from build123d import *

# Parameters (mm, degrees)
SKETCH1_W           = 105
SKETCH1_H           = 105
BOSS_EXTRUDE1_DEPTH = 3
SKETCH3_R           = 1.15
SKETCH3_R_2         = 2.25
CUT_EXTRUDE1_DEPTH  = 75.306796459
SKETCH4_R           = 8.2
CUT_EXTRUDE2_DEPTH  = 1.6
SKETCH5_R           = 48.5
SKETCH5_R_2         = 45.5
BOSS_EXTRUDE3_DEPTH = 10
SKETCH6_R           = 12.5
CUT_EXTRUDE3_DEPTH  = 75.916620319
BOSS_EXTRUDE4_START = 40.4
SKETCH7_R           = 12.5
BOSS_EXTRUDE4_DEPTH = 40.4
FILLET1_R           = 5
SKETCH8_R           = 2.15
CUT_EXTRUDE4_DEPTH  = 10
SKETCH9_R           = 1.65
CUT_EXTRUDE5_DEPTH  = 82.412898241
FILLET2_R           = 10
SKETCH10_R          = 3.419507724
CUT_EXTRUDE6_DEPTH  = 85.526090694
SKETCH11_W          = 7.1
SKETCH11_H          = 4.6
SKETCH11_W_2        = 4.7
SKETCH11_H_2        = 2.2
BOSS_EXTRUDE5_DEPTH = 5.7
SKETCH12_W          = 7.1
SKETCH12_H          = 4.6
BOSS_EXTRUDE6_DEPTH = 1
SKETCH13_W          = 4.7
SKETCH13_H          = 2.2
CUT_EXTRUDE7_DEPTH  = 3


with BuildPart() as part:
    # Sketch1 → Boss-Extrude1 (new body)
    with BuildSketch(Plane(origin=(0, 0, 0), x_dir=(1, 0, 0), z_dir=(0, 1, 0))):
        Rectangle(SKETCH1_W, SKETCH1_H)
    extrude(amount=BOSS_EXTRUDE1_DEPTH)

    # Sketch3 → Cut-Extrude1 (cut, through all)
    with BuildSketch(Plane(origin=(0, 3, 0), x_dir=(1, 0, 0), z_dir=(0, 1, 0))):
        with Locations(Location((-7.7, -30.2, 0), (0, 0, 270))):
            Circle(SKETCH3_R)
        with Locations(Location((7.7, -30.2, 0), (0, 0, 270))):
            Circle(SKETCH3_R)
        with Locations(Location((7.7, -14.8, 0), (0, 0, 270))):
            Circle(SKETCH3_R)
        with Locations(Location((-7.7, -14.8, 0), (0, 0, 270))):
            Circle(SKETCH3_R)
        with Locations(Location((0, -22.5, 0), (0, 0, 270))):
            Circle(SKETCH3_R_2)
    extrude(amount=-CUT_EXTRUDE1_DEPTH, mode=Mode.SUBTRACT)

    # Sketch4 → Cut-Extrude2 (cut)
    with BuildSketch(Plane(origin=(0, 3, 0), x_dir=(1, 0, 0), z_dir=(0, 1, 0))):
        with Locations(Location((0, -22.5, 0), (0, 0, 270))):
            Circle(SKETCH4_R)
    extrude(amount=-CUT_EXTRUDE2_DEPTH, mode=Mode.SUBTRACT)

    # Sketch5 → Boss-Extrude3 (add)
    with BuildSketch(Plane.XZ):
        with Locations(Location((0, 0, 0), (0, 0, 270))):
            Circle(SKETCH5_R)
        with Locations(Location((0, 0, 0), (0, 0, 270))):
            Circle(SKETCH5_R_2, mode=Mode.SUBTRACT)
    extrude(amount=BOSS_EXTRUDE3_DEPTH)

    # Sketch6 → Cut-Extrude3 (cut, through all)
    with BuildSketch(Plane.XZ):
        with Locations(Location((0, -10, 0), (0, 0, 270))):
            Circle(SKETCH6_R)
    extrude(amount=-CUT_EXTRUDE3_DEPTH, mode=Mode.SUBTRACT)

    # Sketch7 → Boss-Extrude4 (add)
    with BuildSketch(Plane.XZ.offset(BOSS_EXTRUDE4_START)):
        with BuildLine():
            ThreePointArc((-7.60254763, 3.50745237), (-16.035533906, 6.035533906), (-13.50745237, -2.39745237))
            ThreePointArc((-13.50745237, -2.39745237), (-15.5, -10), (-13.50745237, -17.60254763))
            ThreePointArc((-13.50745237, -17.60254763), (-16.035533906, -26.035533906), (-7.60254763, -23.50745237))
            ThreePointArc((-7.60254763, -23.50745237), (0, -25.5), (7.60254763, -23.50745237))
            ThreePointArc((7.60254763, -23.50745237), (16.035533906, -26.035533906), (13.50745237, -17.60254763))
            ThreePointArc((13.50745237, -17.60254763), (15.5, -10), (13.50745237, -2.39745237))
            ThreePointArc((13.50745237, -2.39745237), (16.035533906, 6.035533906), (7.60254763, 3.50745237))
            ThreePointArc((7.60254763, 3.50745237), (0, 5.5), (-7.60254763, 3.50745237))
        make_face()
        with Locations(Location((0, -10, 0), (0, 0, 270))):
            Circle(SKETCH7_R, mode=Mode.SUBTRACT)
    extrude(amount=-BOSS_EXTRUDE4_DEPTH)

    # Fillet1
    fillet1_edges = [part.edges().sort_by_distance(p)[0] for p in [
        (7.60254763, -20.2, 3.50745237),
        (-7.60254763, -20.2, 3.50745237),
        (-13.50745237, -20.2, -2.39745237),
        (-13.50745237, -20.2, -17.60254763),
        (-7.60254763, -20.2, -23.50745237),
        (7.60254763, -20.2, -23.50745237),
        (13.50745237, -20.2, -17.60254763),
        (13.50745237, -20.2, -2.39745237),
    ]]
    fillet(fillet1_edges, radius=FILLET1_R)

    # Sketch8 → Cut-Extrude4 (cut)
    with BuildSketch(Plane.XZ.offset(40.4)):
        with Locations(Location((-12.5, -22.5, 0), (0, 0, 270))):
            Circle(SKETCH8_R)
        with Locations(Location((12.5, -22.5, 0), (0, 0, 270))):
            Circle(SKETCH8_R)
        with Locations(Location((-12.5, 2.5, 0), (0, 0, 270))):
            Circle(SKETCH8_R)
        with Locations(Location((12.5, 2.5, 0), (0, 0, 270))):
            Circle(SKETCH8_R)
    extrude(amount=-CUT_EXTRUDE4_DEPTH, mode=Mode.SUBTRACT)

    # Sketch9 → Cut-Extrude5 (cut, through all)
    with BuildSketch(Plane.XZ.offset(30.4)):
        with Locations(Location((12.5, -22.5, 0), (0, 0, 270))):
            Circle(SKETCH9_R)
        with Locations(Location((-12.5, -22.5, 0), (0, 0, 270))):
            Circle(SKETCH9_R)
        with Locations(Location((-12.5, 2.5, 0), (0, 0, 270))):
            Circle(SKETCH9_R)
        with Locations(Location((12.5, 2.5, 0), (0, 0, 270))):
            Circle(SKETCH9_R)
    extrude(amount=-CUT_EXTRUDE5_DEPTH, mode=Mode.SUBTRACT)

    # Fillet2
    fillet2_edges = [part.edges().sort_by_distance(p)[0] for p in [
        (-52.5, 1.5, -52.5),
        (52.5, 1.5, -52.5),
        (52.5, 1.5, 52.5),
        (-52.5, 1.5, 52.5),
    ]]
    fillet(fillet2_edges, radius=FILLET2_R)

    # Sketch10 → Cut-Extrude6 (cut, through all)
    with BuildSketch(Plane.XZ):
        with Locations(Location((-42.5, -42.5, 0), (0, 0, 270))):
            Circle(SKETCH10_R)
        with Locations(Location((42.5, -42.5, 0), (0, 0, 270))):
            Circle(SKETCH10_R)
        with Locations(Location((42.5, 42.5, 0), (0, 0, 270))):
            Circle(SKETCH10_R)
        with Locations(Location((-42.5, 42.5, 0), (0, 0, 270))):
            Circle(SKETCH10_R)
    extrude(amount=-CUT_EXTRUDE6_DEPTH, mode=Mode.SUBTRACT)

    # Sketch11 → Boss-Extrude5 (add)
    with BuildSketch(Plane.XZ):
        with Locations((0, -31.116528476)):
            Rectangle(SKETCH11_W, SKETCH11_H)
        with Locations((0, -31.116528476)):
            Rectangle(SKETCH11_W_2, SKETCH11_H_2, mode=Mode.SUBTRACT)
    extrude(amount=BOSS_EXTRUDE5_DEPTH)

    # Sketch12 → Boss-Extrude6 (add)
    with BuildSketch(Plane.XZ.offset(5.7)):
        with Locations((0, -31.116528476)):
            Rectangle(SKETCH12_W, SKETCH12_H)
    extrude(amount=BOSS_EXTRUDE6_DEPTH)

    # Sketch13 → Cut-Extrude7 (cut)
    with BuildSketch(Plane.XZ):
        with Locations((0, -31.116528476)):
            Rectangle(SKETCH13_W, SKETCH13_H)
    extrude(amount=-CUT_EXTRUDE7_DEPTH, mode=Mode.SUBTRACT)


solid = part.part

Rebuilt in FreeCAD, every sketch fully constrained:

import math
import FreeCAD as App
import Part
import Sketcher
Q = App.Units.Quantity


def edges_at(feature, points):
    """Names of the edges that pass closest to the given points."""
    edges = feature.Shape.Edges
    near = lambda p: min(range(len(edges)), key=lambda i: edges[i].distToShape(Part.Vertex(*p))[0])
    return sorted({f"Edge{near(p) + 1}" for p in points})


def add_polygon(sketch, points):
    """Adds a closed chain of lines whose ends are joined by coincident constraints."""
    first, n = sketch.GeometryCount, len(points)
    for a, b in zip(points, points[1:] + points[:1]):
        sketch.addGeometry(Part.LineSegment(App.Vector(*a, 0), App.Vector(*b, 0)), False)
    for i in range(n):
        sketch.addConstraint(Sketcher.Constraint("Coincident", first + i, 2, first + (i + 1) % n, 1))

doc = App.newDocument("Part")
params = doc.addObject("Spreadsheet::Sheet", "Params")
for row, (alias, value) in enumerate([
    ("sketch1_width", "105 mm"),
    ("pad1_length", "3 mm"),
    ("sketch2_diameter", "2.3 mm"),
    ("sketch2_diameter2", "4.5 mm"),
    ("sketch3_diameter", "16.4 mm"),
    ("pocket2_length", "1.6 mm"),
    ("sketch4_diameter", "97 mm"),
    ("sketch4_diameter2", "91 mm"),
    ("pad2_length", "10 mm"),
    ("sketch5_diameter", "25 mm"),
    ("sketch6_diameter", "25 mm"),
    ("sketch6_radius", "5 mm"),
    ("sketch6_radius2", "15.5 mm"),
    ("pad3_length", "40.4 mm"),
    ("fillet_radius", "5 mm"),
    ("sketch7_diameter", "4.3 mm"),
    ("pocket4_length", "10 mm"),
    ("sketch8_diameter", "3.3 mm"),
    ("fillet2_radius", "10 mm"),
    ("sketch10_width", "7.1 mm"),
    ("sketch10_width2", "4.7 mm"),
    ("sketch10_height", "4.6 mm"),
    ("sketch10_height2", "2.2 mm"),
    ("pad4_length", "5.7 mm"),
    ("sketch11_width", "7.1 mm"),
    ("sketch11_height", "4.6 mm"),
    ("pad5_length", "1 mm"),
    ("sketch12_width", "4.7 mm"),
    ("sketch12_height", "2.2 mm"),
    ("pocket7_length", "3 mm"),
], start=1):
    params.set(f"A{row}", alias)
    params.set(f"B{row}", "=" + value)
    params.setAlias(f"B{row}", alias)

body = doc.addObject("PartDesign::Body", "Body")

# Sketch on XZ plane
sketch1 = doc.addObject("Sketcher::SketchObject", "Sketch")
body.addObject(sketch1)
sketch1.AttachmentSupport = (doc.XZ_Plane, [""])
sketch1.MapMode = "FlatFace"
add_polygon(sketch1, [(-52, -52), (-52, 52), (52, 52), (52, -52)])  # lines 0-3
sketch1.addConstraint(Sketcher.Constraint("Vertical", 0))
sketch1.addConstraint(Sketcher.Constraint("Horizontal", 1))
sketch1.addConstraint(Sketcher.Constraint("Vertical", 2))
sketch1.addConstraint(Sketcher.Constraint("Horizontal", 3))
sketch1.addConstraint(Sketcher.Constraint("Symmetric", 0, 2, 2, 2, -1, 1))
sketch1.addConstraint(Sketcher.Constraint("Equal", 3, 0))
sketch1.addConstraint(Sketcher.Constraint("DistanceX", 1, 1, 1, 2, Q("105 mm")))
sketch1.setExpression("Constraints[10]", "Params.sketch1_width")
pad1 = doc.addObject("PartDesign::Pad", "Pad")
body.addObject(pad1)
pad1.Profile = sketch1
pad1.setExpression("Length", "Params.pad1_length")
pad1.Reversed = True

# Sketch on XZ plane
sketch2 = doc.addObject("Sketcher::SketchObject", "Sketch001")
body.addObject(sketch2)
sketch2.AttachmentSupport = (doc.XZ_Plane, [""])
sketch2.MapMode = "FlatFace"
sketch2.AttachmentOffset = App.Placement(App.Vector(0, 0, -3), App.Rotation())
sketch2.addGeometry(Part.Circle(App.Vector(-7.7, 30.2, 0), App.Vector(0, 0, 1), 1.1), False)
sketch2.addGeometry(Part.Circle(App.Vector(7.7, 30.2, 0), App.Vector(0, 0, 1), 1.1), False)
sketch2.addGeometry(Part.Circle(App.Vector(7.7, 14.8, 0), App.Vector(0, 0, 1), 1.1), False)
sketch2.addGeometry(Part.Circle(App.Vector(-7.7, 14.8, 0), App.Vector(0, 0, 1), 1.1), False)
sketch2.addGeometry(Part.Circle(App.Vector(0, 22.5, 0), App.Vector(0, 0, 1), 2.2), False)
sketch2.addConstraint(Sketcher.Constraint("Equal", 0, 1))
sketch2.addConstraint(Sketcher.Constraint("Equal", 1, 2))
sketch2.addConstraint(Sketcher.Constraint("Equal", 2, 3))
sketch2.addConstraint(Sketcher.Constraint("Symmetric", 0, 3, 1, 3, -2))
sketch2.addConstraint(Sketcher.Constraint("Symmetric", 2, 3, 3, 3, -2))
sketch2.addConstraint(Sketcher.Constraint("PointOnObject", 4, 3, -2))
sketch2.addConstraint(Sketcher.Constraint("Vertical", 1, 3, 2, 3))
sketch2.addConstraint(Sketcher.Constraint("Diameter", 0, Q("2.3 mm")))
sketch2.addConstraint(Sketcher.Constraint("Diameter", 4, Q("4.5 mm")))
sketch2.addConstraint(Sketcher.Constraint("DistanceX", 0, 3, -1, 1, Q("7.7 mm")))
sketch2.addConstraint(Sketcher.Constraint("DistanceY", -1, 1, 0, 3, Q("30.2 mm")))
sketch2.addConstraint(Sketcher.Constraint("DistanceY", -1, 1, 2, 3, Q("14.8 mm")))
sketch2.addConstraint(Sketcher.Constraint("DistanceY", -1, 1, 4, 3, Q("22.5 mm")))
sketch2.setExpression("Constraints[7]", "Params.sketch2_diameter")
sketch2.setExpression("Constraints[8]", "Params.sketch2_diameter2")
pocket1 = doc.addObject("PartDesign::Pocket", "Pocket")
body.addObject(pocket1)
pocket1.Profile = sketch2
pocket1.Type = "ThroughAll"
pocket1.Reversed = True

# Sketch on XZ plane
sketch3 = doc.addObject("Sketcher::SketchObject", "Sketch002")
body.addObject(sketch3)
sketch3.AttachmentSupport = (doc.XZ_Plane, [""])
sketch3.MapMode = "FlatFace"
sketch3.AttachmentOffset = App.Placement(App.Vector(0, 0, -3), App.Rotation())
sketch3.addGeometry(Part.Circle(App.Vector(0, 22, 0), App.Vector(0, 0, 1), 8), False)
sketch3.addConstraint(Sketcher.Constraint("PointOnObject", 0, 3, -2))
sketch3.addConstraint(Sketcher.Constraint("Diameter", 0, Q("16.4 mm")))
sketch3.addConstraint(Sketcher.Constraint("DistanceY", -1, 1, 0, 3, Q("22.5 mm")))
sketch3.setExpression("Constraints[1]", "Params.sketch3_diameter")
pocket2 = doc.addObject("PartDesign::Pocket", "Pocket001")
body.addObject(pocket2)
pocket2.Profile = sketch3
pocket2.setExpression("Length", "Params.pocket2_length")
pocket2.Reversed = True

# Sketch on XZ plane
sketch4 = doc.addObject("Sketcher::SketchObject", "Sketch003")
body.addObject(sketch4)
sketch4.AttachmentSupport = (doc.XZ_Plane, [""])
sketch4.MapMode = "FlatFace"
sketch4.addGeometry(Part.Circle(App.Vector(0, 0, 0), App.Vector(0, 0, 1), 48), False)
sketch4.addGeometry(Part.Circle(App.Vector(0, 0, 0), App.Vector(0, 0, 1), 46), False)
sketch4.addConstraint(Sketcher.Constraint("Coincident", 0, 3, -1, 1))
sketch4.addConstraint(Sketcher.Constraint("Coincident", 1, 3, -1, 1))
sketch4.addConstraint(Sketcher.Constraint("Diameter", 0, Q("97 mm")))
sketch4.addConstraint(Sketcher.Constraint("Diameter", 1, Q("91 mm")))
sketch4.setExpression("Constraints[2]", "Params.sketch4_diameter")
sketch4.setExpression("Constraints[3]", "Params.sketch4_diameter2")
pad2 = doc.addObject("PartDesign::Pad", "Pad001")
body.addObject(pad2)
pad2.Profile = sketch4
pad2.setExpression("Length", "Params.pad2_length")

# Sketch on XZ plane
sketch5 = doc.addObject("Sketcher::SketchObject", "Sketch004")
body.addObject(sketch5)
sketch5.AttachmentSupport = (doc.XZ_Plane, [""])
sketch5.MapMode = "FlatFace"
sketch5.addGeometry(Part.Circle(App.Vector(0, -10, 0), App.Vector(0, 0, 1), 12), False)
sketch5.addConstraint(Sketcher.Constraint("PointOnObject", 0, 3, -2))
sketch5.addConstraint(Sketcher.Constraint("Diameter", 0, Q("25 mm")))
sketch5.addConstraint(Sketcher.Constraint("DistanceY", 0, 3, -1, 1, Q("10 mm")))
sketch5.setExpression("Constraints[1]", "Params.sketch5_diameter")
pocket3 = doc.addObject("PartDesign::Pocket", "Pocket002")
body.addObject(pocket3)
pocket3.Profile = sketch5
pocket3.Type = "ThroughAll"

# Sketch on XZ plane
sketch6 = doc.addObject("Sketcher::SketchObject", "Sketch005")
body.addObject(sketch6)
sketch6.AttachmentSupport = (doc.XZ_Plane, [""])
sketch6.MapMode = "FlatFace"
sketch6.AttachmentOffset = App.Placement(App.Vector(0, 0, 40.4), App.Rotation())
sketch6.addGeometry(Part.ArcOfCircle(Part.Circle(App.Vector(-12, 2, 0), App.Vector(0, 0, 1), 5), math.radians(12), math.radians(258)), False)
sketch6.addGeometry(Part.ArcOfCircle(Part.Circle(App.Vector(0, -10, 0), App.Vector(0, 0, 1), 15), math.radians(151), math.radians(209)), False)
sketch6.addGeometry(Part.ArcOfCircle(Part.Circle(App.Vector(-12, -22, 0), App.Vector(0, 0, 1), 5), math.radians(102), math.radians(348)), False)
sketch6.addGeometry(Part.ArcOfCircle(Part.Circle(App.Vector(0, -10, 0), App.Vector(0, 0, 1), 15), math.radians(-119), math.radians(-61)), False)
sketch6.addGeometry(Part.ArcOfCircle(Part.Circle(App.Vector(12, -22, 0), App.Vector(0, 0, 1), 5), math.radians(-168), math.radians(78)), False)
sketch6.addGeometry(Part.ArcOfCircle(Part.Circle(App.Vector(0, -10, 0), App.Vector(0, 0, 1), 15), math.radians(-29), math.radians(29)), False)
sketch6.addGeometry(Part.ArcOfCircle(Part.Circle(App.Vector(12, 2, 0), App.Vector(0, 0, 1), 5), math.radians(-78), math.radians(168)), False)
sketch6.addGeometry(Part.ArcOfCircle(Part.Circle(App.Vector(0, -10, 0), App.Vector(0, 0, 1), 15), math.radians(61), math.radians(119)), False)
sketch6.addGeometry(Part.Circle(App.Vector(0, -10, 0), App.Vector(0, 0, 1), 12), False)
sketch6.addConstraint(Sketcher.Constraint("Coincident", 0, 2, 1, 1))
sketch6.addConstraint(Sketcher.Constraint("Coincident", 1, 2, 2, 1))
sketch6.addConstraint(Sketcher.Constraint("Coincident", 2, 2, 3, 1))
sketch6.addConstraint(Sketcher.Constraint("Coincident", 3, 2, 4, 1))
sketch6.addConstraint(Sketcher.Constraint("Coincident", 4, 2, 5, 1))
sketch6.addConstraint(Sketcher.Constraint("Coincident", 5, 2, 6, 1))
sketch6.addConstraint(Sketcher.Constraint("Coincident", 6, 2, 7, 1))
sketch6.addConstraint(Sketcher.Constraint("Coincident", 7, 2, 0, 1))
sketch6.addConstraint(Sketcher.Constraint("Coincident", 3, 3, 1, 3))
sketch6.addConstraint(Sketcher.Constraint("Coincident", 5, 3, 1, 3))
sketch6.addConstraint(Sketcher.Constraint("Coincident", 7, 3, 1, 3))
sketch6.addConstraint(Sketcher.Constraint("Coincident", 8, 3, 1, 3))
sketch6.addConstraint(Sketcher.Constraint("Equal", 0, 2))
sketch6.addConstraint(Sketcher.Constraint("Equal", 1, 3))
sketch6.addConstraint(Sketcher.Constraint("Equal", 2, 4))
sketch6.addConstraint(Sketcher.Constraint("Equal", 3, 5))
sketch6.addConstraint(Sketcher.Constraint("Equal", 4, 6))
sketch6.addConstraint(Sketcher.Constraint("Equal", 5, 7))
sketch6.addConstraint(Sketcher.Constraint("Symmetric", 2, 3, 4, 3, -2))
sketch6.addConstraint(Sketcher.Constraint("Symmetric", 0, 3, 6, 3, -2))
sketch6.addConstraint(Sketcher.Constraint("PointOnObject", 1, 3, -2))
sketch6.addConstraint(Sketcher.Constraint("Vertical", 0, 3, 2, 3))
sketch6.addConstraint(Sketcher.Constraint("Vertical", 0, 2, 1, 2))
sketch6.addConstraint(Sketcher.Constraint("Diameter", 8, Q("25 mm")))
sketch6.addConstraint(Sketcher.Constraint("Radius", 0, Q("5 mm")))
sketch6.addConstraint(Sketcher.Constraint("Radius", 1, Q("15.5 mm")))
sketch6.addConstraint(Sketcher.Constraint("DistanceY", 1, 3, -1, 1, Q("10 mm")))
sketch6.addConstraint(Sketcher.Constraint("DistanceY", 2, 3, 0, 3, Q("25 mm")))
sketch6.addConstraint(Sketcher.Constraint("DistanceX", 2, 3, 4, 3, Q("25 mm")))
sketch6.setExpression("Constraints[23]", "Params.sketch6_diameter")
sketch6.setExpression("Constraints[24]", "Params.sketch6_radius")
sketch6.setExpression("Constraints[25]", "Params.sketch6_radius2")
pad3 = doc.addObject("PartDesign::Pad", "Pad002")
body.addObject(pad3)
pad3.Profile = sketch6
pad3.setExpression("Length", "Params.pad3_length")
pad3.Reversed = True
doc.recompute()

fillet = doc.addObject("PartDesign::Fillet", "Fillet")
body.addObject(fillet)
fillet.Base = (pad3, edges_at(pad3, [
    (7.603, -20.2, 3.507),
    (-7.603, -20.2, 3.507),
    (-13.507, -20.2, -2.397),
    (-13.507, -20.2, -17.603),
    (-7.603, -20.2, -23.507),
    (7.603, -20.2, -23.507),
    (13.507, -20.2, -17.603),
    (13.507, -20.2, -2.397),
]))
fillet.setExpression("Radius", "Params.fillet_radius")

# Sketch on XZ plane
sketch7 = doc.addObject("Sketcher::SketchObject", "Sketch006")
body.addObject(sketch7)
sketch7.AttachmentSupport = (doc.XZ_Plane, [""])
sketch7.MapMode = "FlatFace"
sketch7.AttachmentOffset = App.Placement(App.Vector(0, 0, 40.4), App.Rotation())
sketch7.addGeometry(Part.Circle(App.Vector(-12.5, -22.5, 0), App.Vector(0, 0, 1), 2.1), False)
sketch7.addGeometry(Part.Circle(App.Vector(12.5, -22.5, 0), App.Vector(0, 0, 1), 2.1), False)
sketch7.addGeometry(Part.Circle(App.Vector(-12.5, 2.5, 0), App.Vector(0, 0, 1), 2.1), False)
sketch7.addGeometry(Part.Circle(App.Vector(12.5, 2.5, 0), App.Vector(0, 0, 1), 2.1), False)
sketch7.addConstraint(Sketcher.Constraint("Equal", 0, 1))
sketch7.addConstraint(Sketcher.Constraint("Equal", 1, 2))
sketch7.addConstraint(Sketcher.Constraint("Equal", 2, 3))
sketch7.addConstraint(Sketcher.Constraint("Symmetric", 0, 3, 1, 3, -2))
sketch7.addConstraint(Sketcher.Constraint("Symmetric", 2, 3, 3, 3, -2))
sketch7.addConstraint(Sketcher.Constraint("Vertical", 0, 3, 2, 3))
sketch7.addConstraint(Sketcher.Constraint("Diameter", 0, Q("4.3 mm")))
sketch7.addConstraint(Sketcher.Constraint("DistanceX", 0, 3, 1, 3, Q("25 mm")))
sketch7.addConstraint(Sketcher.Constraint("DistanceY", 0, 3, 2, 3, Q("25 mm")))
sketch7.addConstraint(Sketcher.Constraint("DistanceY", 0, 3, -1, 1, Q("22.5 mm")))
sketch7.setExpression("Constraints[6]", "Params.sketch7_diameter")
pocket4 = doc.addObject("PartDesign::Pocket", "Pocket003")
body.addObject(pocket4)
pocket4.Profile = sketch7
pocket4.setExpression("Length", "Params.pocket4_length")

# Sketch on XZ plane
sketch8 = doc.addObject("Sketcher::SketchObject", "Sketch007")
body.addObject(sketch8)
sketch8.AttachmentSupport = (doc.XZ_Plane, [""])
sketch8.MapMode = "FlatFace"
sketch8.AttachmentOffset = App.Placement(App.Vector(0, 0, 30.4), App.Rotation())
sketch8.addGeometry(Part.Circle(App.Vector(12.5, -22.5, 0), App.Vector(0, 0, 1), 1.6), False)
sketch8.addGeometry(Part.Circle(App.Vector(-12.5, -22.5, 0), App.Vector(0, 0, 1), 1.6), False)
sketch8.addGeometry(Part.Circle(App.Vector(-12.5, 2.5, 0), App.Vector(0, 0, 1), 1.6), False)
sketch8.addGeometry(Part.Circle(App.Vector(12.5, 2.5, 0), App.Vector(0, 0, 1), 1.6), False)
sketch8.addConstraint(Sketcher.Constraint("Equal", 0, 1))
sketch8.addConstraint(Sketcher.Constraint("Equal", 1, 2))
sketch8.addConstraint(Sketcher.Constraint("Equal", 2, 3))
sketch8.addConstraint(Sketcher.Constraint("Symmetric", 0, 3, 1, 3, -2))
sketch8.addConstraint(Sketcher.Constraint("Symmetric", 2, 3, 3, 3, -2))
sketch8.addConstraint(Sketcher.Constraint("Vertical", 1, 3, 2, 3))
sketch8.addConstraint(Sketcher.Constraint("Diameter", 0, Q("3.3 mm")))
sketch8.addConstraint(Sketcher.Constraint("DistanceX", 1, 3, 0, 3, Q("25 mm")))
sketch8.addConstraint(Sketcher.Constraint("DistanceY", 1, 3, 2, 3, Q("25 mm")))
sketch8.addConstraint(Sketcher.Constraint("DistanceY", 0, 3, -1, 1, Q("22.5 mm")))
sketch8.setExpression("Constraints[6]", "Params.sketch8_diameter")
pocket5 = doc.addObject("PartDesign::Pocket", "Pocket004")
body.addObject(pocket5)
pocket5.Profile = sketch8
pocket5.Type = "ThroughAll"
doc.recompute()

fillet2 = doc.addObject("PartDesign::Fillet", "Fillet001")
body.addObject(fillet2)
fillet2.Base = (pocket5, edges_at(pocket5, [
    (-52.5, 1.5, -52.5),
    (52.5, 1.5, -52.5),
    (52.5, 1.5, 52.5),
    (-52.5, 1.5, 52.5),
]))
fillet2.setExpression("Radius", "Params.fillet2_radius")

# Sketch on XZ plane
sketch9 = doc.addObject("Sketcher::SketchObject", "Sketch008")
body.addObject(sketch9)
sketch9.AttachmentSupport = (doc.XZ_Plane, [""])
sketch9.MapMode = "FlatFace"
sketch9.addGeometry(Part.Circle(App.Vector(-42.5, -42.5, 0), App.Vector(0, 0, 1), 3.4), False)
sketch9.addGeometry(Part.Circle(App.Vector(42.5, -42.5, 0), App.Vector(0, 0, 1), 3.4), False)
sketch9.addGeometry(Part.Circle(App.Vector(42.5, 42.5, 0), App.Vector(0, 0, 1), 3.4), False)
sketch9.addGeometry(Part.Circle(App.Vector(-42.5, 42.5, 0), App.Vector(0, 0, 1), 3.4), False)
sketch9.addConstraint(Sketcher.Constraint("Equal", 0, 1))
sketch9.addConstraint(Sketcher.Constraint("Equal", 1, 2))
sketch9.addConstraint(Sketcher.Constraint("Equal", 2, 3))
sketch9.addConstraint(Sketcher.Constraint("Symmetric", 0, 3, 2, 3, -1, 1))
sketch9.addConstraint(Sketcher.Constraint("Symmetric", 1, 3, 3, 3, -1, 1))
sketch9.addConstraint(Sketcher.Constraint("Symmetric", 0, 3, 1, 3, -2))
sketch9.addConstraint(Sketcher.Constraint("DistanceX", 0, 3, 1, 3, Q("85 mm")))
sketch9.addConstraint(Sketcher.Constraint("DistanceY", 1, 3, 2, 3, Q("85 mm")))
sketch9.addConstraint(Sketcher.Constraint("Diameter", 0, Q("6.839015 mm")))
pocket6 = doc.addObject("PartDesign::Pocket", "Pocket005")
body.addObject(pocket6)
pocket6.Profile = sketch9
pocket6.Type = "ThroughAll"

# Sketch on XZ plane
sketch10 = doc.addObject("Sketcher::SketchObject", "Sketch009")
body.addObject(sketch10)
sketch10.AttachmentSupport = (doc.XZ_Plane, [""])
sketch10.MapMode = "FlatFace"
add_polygon(sketch10, [(-3.5, -28.8), (-3.5, -33.4), (3.5, -33.4), (3.5, -28.8)])  # lines 0-3
add_polygon(sketch10, [(2.4, -32.2), (-2.4, -32.2), (-2.4, -30), (2.4, -30)])  # lines 4-7
sketch10.addConstraint(Sketcher.Constraint("Vertical", 0))
sketch10.addConstraint(Sketcher.Constraint("Horizontal", 1))
sketch10.addConstraint(Sketcher.Constraint("Vertical", 2))
sketch10.addConstraint(Sketcher.Constraint("Horizontal", 3))
sketch10.addConstraint(Sketcher.Constraint("Horizontal", 4))
sketch10.addConstraint(Sketcher.Constraint("Vertical", 5))
sketch10.addConstraint(Sketcher.Constraint("Horizontal", 6))
sketch10.addConstraint(Sketcher.Constraint("Vertical", 7))
sketch10.addConstraint(Sketcher.Constraint("DistanceX", 1, 1, 1, 2, Q("7.1 mm")))
sketch10.addConstraint(Sketcher.Constraint("DistanceX", 4, 2, 4, 1, Q("4.7 mm")))
sketch10.addConstraint(Sketcher.Constraint("DistanceY", 0, 2, 0, 1, Q("4.6 mm")))
sketch10.addConstraint(Sketcher.Constraint("DistanceY", 5, 1, 5, 2, Q("2.2 mm")))
sketch10.addConstraint(Sketcher.Constraint("DistanceX", 0, 2, 4, 2, Q("1.2 mm")))
sketch10.addConstraint(Sketcher.Constraint("DistanceY", 0, 2, 4, 2, Q("1.2 mm")))
sketch10.addConstraint(Sketcher.Constraint("DistanceX", 0, 2, -1, 1, Q("3.55 mm")))
sketch10.addConstraint(Sketcher.Constraint("DistanceY", 0, 2, -1, 1, Q("33.416528 mm")))
sketch10.setExpression("Constraints[16]", "Params.sketch10_width")
sketch10.setExpression("Constraints[17]", "Params.sketch10_width2")
sketch10.setExpression("Constraints[18]", "Params.sketch10_height")
sketch10.setExpression("Constraints[19]", "Params.sketch10_height2")
pad4 = doc.addObject("PartDesign::Pad", "Pad003")
body.addObject(pad4)
pad4.Profile = sketch10
pad4.setExpression("Length", "Params.pad4_length")

# Sketch on XZ plane
sketch11 = doc.addObject("Sketcher::SketchObject", "Sketch010")
body.addObject(sketch11)
sketch11.AttachmentSupport = (doc.XZ_Plane, [""])
sketch11.MapMode = "FlatFace"
sketch11.AttachmentOffset = App.Placement(App.Vector(0, 0, 5.7), App.Rotation())
add_polygon(sketch11, [(-3.5, -28.8), (-3.5, -33.4), (3.5, -33.4), (3.5, -28.8)])  # lines 0-3
sketch11.addConstraint(Sketcher.Constraint("Vertical", 0))
sketch11.addConstraint(Sketcher.Constraint("Horizontal", 1))
sketch11.addConstraint(Sketcher.Constraint("Vertical", 2))
sketch11.addConstraint(Sketcher.Constraint("Horizontal", 3))
sketch11.addConstraint(Sketcher.Constraint("DistanceX", 1, 1, 1, 2, Q("7.1 mm")))
sketch11.addConstraint(Sketcher.Constraint("DistanceY", 0, 2, 0, 1, Q("4.6 mm")))
sketch11.addConstraint(Sketcher.Constraint("DistanceX", 0, 2, -1, 1, Q("3.55 mm")))
sketch11.addConstraint(Sketcher.Constraint("DistanceY", 0, 2, -1, 1, Q("33.416528 mm")))
sketch11.setExpression("Constraints[8]", "Params.sketch11_width")
sketch11.setExpression("Constraints[9]", "Params.sketch11_height")
pad5 = doc.addObject("PartDesign::Pad", "Pad004")
body.addObject(pad5)
pad5.Profile = sketch11
pad5.setExpression("Length", "Params.pad5_length")

# Sketch on XZ plane
sketch12 = doc.addObject("Sketcher::SketchObject", "Sketch011")
body.addObject(sketch12)
sketch12.AttachmentSupport = (doc.XZ_Plane, [""])
sketch12.MapMode = "FlatFace"
add_polygon(sketch12, [(-2.4, -30), (-2.4, -32.2), (2.4, -32.2), (2.4, -30)])  # lines 0-3
sketch12.addConstraint(Sketcher.Constraint("Vertical", 0))
sketch12.addConstraint(Sketcher.Constraint("Horizontal", 1))
sketch12.addConstraint(Sketcher.Constraint("Vertical", 2))
sketch12.addConstraint(Sketcher.Constraint("Horizontal", 3))
sketch12.addConstraint(Sketcher.Constraint("DistanceX", 1, 1, 1, 2, Q("4.7 mm")))
sketch12.addConstraint(Sketcher.Constraint("DistanceY", 0, 2, 0, 1, Q("2.2 mm")))
sketch12.addConstraint(Sketcher.Constraint("DistanceX", 0, 2, -1, 1, Q("2.35 mm")))
sketch12.addConstraint(Sketcher.Constraint("DistanceY", 0, 2, -1, 1, Q("32.216528 mm")))
sketch12.setExpression("Constraints[8]", "Params.sketch12_width")
sketch12.setExpression("Constraints[9]", "Params.sketch12_height")
pocket7 = doc.addObject("PartDesign::Pocket", "Pocket006")
body.addObject(pocket7)
pocket7.Profile = sketch12
pocket7.setExpression("Length", "Params.pocket7_length")

doc.recompute()
